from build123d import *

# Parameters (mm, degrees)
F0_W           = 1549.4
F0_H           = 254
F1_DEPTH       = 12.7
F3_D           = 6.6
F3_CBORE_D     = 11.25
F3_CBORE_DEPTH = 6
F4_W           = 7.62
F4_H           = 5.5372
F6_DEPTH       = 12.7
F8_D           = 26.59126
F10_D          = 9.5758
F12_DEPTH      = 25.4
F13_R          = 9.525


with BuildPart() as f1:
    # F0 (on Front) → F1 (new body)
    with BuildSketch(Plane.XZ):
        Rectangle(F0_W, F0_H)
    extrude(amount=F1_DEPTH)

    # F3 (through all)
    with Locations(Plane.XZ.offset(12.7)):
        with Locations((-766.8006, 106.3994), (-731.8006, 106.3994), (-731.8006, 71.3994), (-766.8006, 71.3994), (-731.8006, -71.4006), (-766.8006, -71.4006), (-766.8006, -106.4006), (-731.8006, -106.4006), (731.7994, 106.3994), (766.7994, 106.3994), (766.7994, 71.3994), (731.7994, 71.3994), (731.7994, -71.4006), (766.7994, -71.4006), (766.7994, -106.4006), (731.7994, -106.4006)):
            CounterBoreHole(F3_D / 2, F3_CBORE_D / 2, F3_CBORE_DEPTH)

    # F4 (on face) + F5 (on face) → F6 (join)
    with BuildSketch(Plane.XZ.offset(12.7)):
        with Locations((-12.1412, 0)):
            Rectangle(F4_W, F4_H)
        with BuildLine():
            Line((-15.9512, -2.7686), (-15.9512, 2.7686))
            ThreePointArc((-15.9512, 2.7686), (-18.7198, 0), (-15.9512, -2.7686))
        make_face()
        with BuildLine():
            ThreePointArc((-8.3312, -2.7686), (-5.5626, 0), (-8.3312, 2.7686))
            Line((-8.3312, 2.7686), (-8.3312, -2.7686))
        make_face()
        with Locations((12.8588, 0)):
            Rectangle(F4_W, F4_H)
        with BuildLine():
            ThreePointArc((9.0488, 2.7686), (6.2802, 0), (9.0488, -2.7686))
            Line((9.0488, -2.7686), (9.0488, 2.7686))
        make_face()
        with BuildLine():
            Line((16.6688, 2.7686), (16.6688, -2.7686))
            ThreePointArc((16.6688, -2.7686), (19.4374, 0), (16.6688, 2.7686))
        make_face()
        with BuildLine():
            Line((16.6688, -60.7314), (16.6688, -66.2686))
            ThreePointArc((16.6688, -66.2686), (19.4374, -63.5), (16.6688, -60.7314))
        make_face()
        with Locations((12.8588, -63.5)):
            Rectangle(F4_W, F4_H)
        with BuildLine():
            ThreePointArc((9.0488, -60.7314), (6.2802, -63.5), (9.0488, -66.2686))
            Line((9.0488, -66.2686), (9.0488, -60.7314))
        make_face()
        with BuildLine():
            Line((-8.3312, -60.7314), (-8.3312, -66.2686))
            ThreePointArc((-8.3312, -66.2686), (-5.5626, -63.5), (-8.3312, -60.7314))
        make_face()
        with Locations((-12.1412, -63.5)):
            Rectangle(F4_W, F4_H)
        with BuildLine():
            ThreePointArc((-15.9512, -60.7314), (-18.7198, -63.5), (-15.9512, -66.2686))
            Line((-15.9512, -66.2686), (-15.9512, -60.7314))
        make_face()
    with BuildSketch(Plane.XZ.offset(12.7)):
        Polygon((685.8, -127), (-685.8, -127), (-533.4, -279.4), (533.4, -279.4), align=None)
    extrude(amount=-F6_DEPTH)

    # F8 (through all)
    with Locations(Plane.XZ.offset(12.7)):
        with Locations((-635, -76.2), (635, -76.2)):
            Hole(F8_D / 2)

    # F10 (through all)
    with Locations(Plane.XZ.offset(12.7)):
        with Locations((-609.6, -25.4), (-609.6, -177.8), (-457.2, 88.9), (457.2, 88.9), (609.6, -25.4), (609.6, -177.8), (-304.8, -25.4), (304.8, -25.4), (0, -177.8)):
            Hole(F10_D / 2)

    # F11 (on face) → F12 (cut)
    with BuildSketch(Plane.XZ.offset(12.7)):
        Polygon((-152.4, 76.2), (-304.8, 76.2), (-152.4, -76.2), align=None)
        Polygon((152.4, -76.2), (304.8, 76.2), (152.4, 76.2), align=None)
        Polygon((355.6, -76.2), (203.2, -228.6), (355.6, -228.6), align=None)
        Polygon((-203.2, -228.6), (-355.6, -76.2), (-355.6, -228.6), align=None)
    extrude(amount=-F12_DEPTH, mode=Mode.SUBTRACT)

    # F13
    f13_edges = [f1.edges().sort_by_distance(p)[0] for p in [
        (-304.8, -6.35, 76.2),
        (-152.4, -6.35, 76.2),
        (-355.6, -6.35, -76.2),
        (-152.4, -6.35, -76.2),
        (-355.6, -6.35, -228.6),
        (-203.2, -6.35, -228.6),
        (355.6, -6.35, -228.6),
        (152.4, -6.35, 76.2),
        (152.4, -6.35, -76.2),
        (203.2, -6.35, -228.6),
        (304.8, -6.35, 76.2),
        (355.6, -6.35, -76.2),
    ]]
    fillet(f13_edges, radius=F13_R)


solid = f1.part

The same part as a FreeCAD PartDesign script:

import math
import FreeCAD as App
import Part
import Sketcher
from FreeCAD import Vector
Q = App.Units.Quantity


def edges_at(feature, points):
    """Names of the edges that pass closest to the given points."""
    edges = feature.Shape.Edges
    near = lambda p: min(range(len(edges)), key=lambda i: edges[i].distToShape(Part.Vertex(*p))[0])
    return sorted({f"Edge{near(p) + 1}" for p in points})

doc = App.newDocument("Part")
params = doc.addObject("Spreadsheet::Sheet", "Params")
for row, (alias, value) in enumerate([
    ("sketch1_width", "61 in"),
    ("sketch1_height", "10 in"),
    ("pad1_length", "0.5 in"),
    ("hole_diameter", "6.6 mm"),
    ("hole_cbore_diameter", "11.25 mm"),
    ("hole_cbore_depth", "6 mm"),
    ("sketch3_width", "54 in"),
    ("sketch3_width2", "42 in"),
    ("sketch3_width3", "0.3 in"),
    ("sketch3_radius", "0.109 in"),
    ("pad2_length", "0.5 in"),
    ("hole2_diameter", "1.0469 in"),
    ("sketch5_diameter", "0.377 in"),
    ("hole3_diameter", "0.377 in"),
    ("sketch6_width", "6 in"),
    ("pocket1_length", "1 in"),
    ("fillet_radius", "0.375 in"),
], start=1):
    params.set(f"A{row}", alias)
    params.set(f"B{row}", "=" + value)
    params.setAlias(f"B{row}", alias)

body = doc.addObject("PartDesign::Body", "Body")

# Sketch on XZ plane
sketch1 = body.newObject("Sketcher::SketchObject", "Sketch")
sketch1.AttachmentSupport = (doc.getObject("XZ_Plane"), [""])
sketch1.MapMode = "FlatFace"
sketch1.addGeometry(Part.LineSegment(Vector(-775, 127, 0), Vector(-775, -127, 0)), False)
sketch1.addGeometry(Part.LineSegment(Vector(-775, -127, 0), Vector(775, -127, 0)), False)
sketch1.addGeometry(Part.LineSegment(Vector(775, -127, 0), Vector(775, 127, 0)), False)
sketch1.addGeometry(Part.LineSegment(Vector(775, 127, 0), Vector(-775, 127, 0)), False)
sketch1.addConstraint(Sketcher.Constraint("Coincident", 0, 2, 1, 1))
sketch1.addConstraint(Sketcher.Constraint("Coincident", 1, 2, 2, 1))
sketch1.addConstraint(Sketcher.Constraint("Coincident", 2, 2, 3, 1))
sketch1.addConstraint(Sketcher.Constraint("Coincident", 3, 2, 0, 1))
sketch1.addConstraint(Sketcher.Constraint("Vertical", 0))
sketch1.addConstraint(Sketcher.Constraint("Horizontal", 1))
sketch1.addConstraint(Sketcher.Constraint("Vertical", 2))
sketch1.addConstraint(Sketcher.Constraint("Horizontal", 3))
sketch1.addConstraint(Sketcher.Constraint("Symmetric", 0, 2, 2, 2, -1, 1))
sketch1.addConstraint(Sketcher.Constraint("DistanceX", 1, 1, 1, 2, Q("61 in")))
sketch1.addConstraint(Sketcher.Constraint("DistanceY", 0, 2, 0, 1, Q("10 in")))
sketch1.setExpression("Constraints[9]", "Params.sketch1_width")
sketch1.setExpression("Constraints[10]", "Params.sketch1_height")
pad1 = body.newObject("PartDesign::Pad", "Pad")
pad1.Profile = sketch1
pad1.setExpression("Length", "Params.pad1_length")

# Sketch on XZ plane
sketch2 = body.newObject("Sketcher::SketchObject", "Sketch001")
sketch2.AttachmentSupport = (doc.getObject("XZ_Plane"), [""])
sketch2.MapMode = "FlatFace"
sketch2.AttachmentOffset = App.Placement(Vector(0, 0, 0.5 * 25.4), App.Rotation())
sketch2.addGeometry(Part.Circle(Vector(-766.8, 106.4, 0), Vector(0, 0, 1), 3.3), False)
sketch2.addGeometry(Part.Circle(Vector(-731.8, 106.4, 0), Vector(0, 0, 1), 3.3), False)
sketch2.addGeometry(Part.Circle(Vector(-731.8, 71.4, 0), Vector(0, 0, 1), 3.3), False)
sketch2.addGeometry(Part.Circle(Vector(-766.8, 71.4, 0), Vector(0, 0, 1), 3.3), False)
sketch2.addGeometry(Part.Circle(Vector(-731.8, -71.4, 0), Vector(0, 0, 1), 3.3), False)
sketch2.addGeometry(Part.Circle(Vector(-766.8, -71.4, 0), Vector(0, 0, 1), 3.3), False)
sketch2.addGeometry(Part.Circle(Vector(-766.8, -106.4, 0), Vector(0, 0, 1), 3.3), False)
sketch2.addGeometry(Part.Circle(Vector(-731.8, -106.4, 0), Vector(0, 0, 1), 3.3), False)
sketch2.addGeometry(Part.Circle(Vector(731.8, 106.4, 0), Vector(0, 0, 1), 3.3), False)
sketch2.addGeometry(Part.Circle(Vector(766.8, 106.4, 0), Vector(0, 0, 1), 3.3), False)
sketch2.addGeometry(Part.Circle(Vector(766.8, 71.4, 0), Vector(0, 0, 1), 3.3), False)
sketch2.addGeometry(Part.Circle(Vector(731.8, 71.4, 0), Vector(0, 0, 1), 3.3), False)
sketch2.addGeometry(Part.Circle(Vector(731.8, -71.4, 0), Vector(0, 0, 1), 3.3), False)
sketch2.addGeometry(Part.Circle(Vector(766.8, -71.4, 0), Vector(0, 0, 1), 3.3), False)
sketch2.addGeometry(Part.Circle(Vector(766.8, -106.4, 0), Vector(0, 0, 1), 3.3), False)
sketch2.addGeometry(Part.Circle(Vector(731.8, -106.4, 0), Vector(0, 0, 1), 3.3), False)
sketch2.addConstraint(Sketcher.Constraint("Equal", 0, 1))
sketch2.addConstraint(Sketcher.Constraint("Equal", 1, 2))
sketch2.addConstraint(Sketcher.Constraint("Equal", 2, 3))
sketch2.addConstraint(Sketcher.Constraint("Equal", 3, 4))
sketch2.addConstraint(Sketcher.Constraint("Equal", 4, 5))
sketch2.addConstraint(Sketcher.Constraint("Equal", 5, 6))
sketch2.addConstraint(Sketcher.Constraint("Equal", 6, 7))
sketch2.addConstraint(Sketcher.Constraint("Equal", 7, 8))
sketch2.addConstraint(Sketcher.Constraint("Equal", 8, 9))
sketch2.addConstraint(Sketcher.Constraint("Equal", 9, 10))
sketch2.addConstraint(Sketcher.Constraint("Equal", 10, 11))
sketch2.addConstraint(Sketcher.Constraint("Equal", 11, 12))
sketch2.addConstraint(Sketcher.Constraint("Equal", 12, 13))
sketch2.addConstraint(Sketcher.Constraint("Equal", 13, 14))
sketch2.addConstraint(Sketcher.Constraint("Equal", 14, 15))
sketch2.addConstraint(Sketcher.Constraint("Horizontal", 0, 3, 1, 3))
sketch2.addConstraint(Sketcher.Constraint("Horizontal", 2, 3, 3, 3))
sketch2.addConstraint(Sketcher.Constraint("Horizontal", 4, 3, 5, 3))
sketch2.addConstraint(Sketcher.Constraint("Horizontal", 6, 3, 7, 3))
sketch2.addConstraint(Sketcher.Constraint("Horizontal", 1, 3, 8, 3))
sketch2.addConstraint(Sketcher.Constraint("Horizontal", 8, 3, 9, 3))
sketch2.addConstraint(Sketcher.Constraint("Horizontal", 3, 3, 10, 3))
sketch2.addConstraint(Sketcher.Constraint("Horizontal", 10, 3, 11, 3))
sketch2.addConstraint(Sketcher.Constraint("Horizontal", 5, 3, 12, 3))
sketch2.addConstraint(Sketcher.Constraint("Horizontal", 12, 3, 13, 3))
sketch2.addConstraint(Sketcher.Constraint("Horizontal", 7, 3, 14, 3))
sketch2.addConstraint(Sketcher.Constraint("Horizontal", 14, 3, 15, 3))
sketch2.addConstraint(Sketcher.Constraint("Vertical", 1, 3, 2, 3))
sketch2.addConstraint(Sketcher.Constraint("Vertical", 0, 3, 3, 3))
sketch2.addConstraint(Sketcher.Constraint("Vertical", 2, 3, 4, 3))
sketch2.addConstraint(Sketcher.Constraint("Vertical", 3, 3, 5, 3))
sketch2.addConstraint(Sketcher.Constraint("Vertical", 5, 3, 6, 3))
sketch2.addConstraint(Sketcher.Constraint("Vertical", 4, 3, 7, 3))
sketch2.addConstraint(Sketcher.Constraint("Vertical", 9, 3, 10, 3))
sketch2.addConstraint(Sketcher.Constraint("Vertical", 8, 3, 11, 3))
sketch2.addConstraint(Sketcher.Constraint("Vertical", 11, 3, 12, 3))
sketch2.addConstraint(Sketcher.Constraint("Vertical", 10, 3, 13, 3))
sketch2.addConstraint(Sketcher.Constraint("Vertical", 13, 3, 14, 3))
sketch2.addConstraint(Sketcher.Constraint("Vertical", 12, 3, 15, 3))
sketch2.addConstraint(Sketcher.Constraint("DistanceY", 4, 3, 1, 3, Q("7 in")))
sketch2.addConstraint(Sketcher.Constraint("DistanceY", 6, 3, 3, 3, Q("7 in")))
sketch2.addConstraint(Sketcher.Constraint("DistanceX", 0, 3, 8, 3, Q("59 in")))
sketch2.addConstraint(Sketcher.Constraint("DistanceX", 1, 3, 9, 3, Q("59 in")))
sketch2.addConstraint(Sketcher.Constraint("Diameter", 0, 6.6))
sketch2.addConstraint(Sketcher.Constraint("DistanceX", 0, 3, -1, 1, Q("30.189 in")))
sketch2.addConstraint(Sketcher.Constraint("DistanceY", -1, 1, 2, 3, Q("2.811 in")))
sketch2.addConstraint(Sketcher.Constraint("DistanceY", -1, 1, 0, 3, 106.3994))
sketch2.addConstraint(Sketcher.Constraint("DistanceX", 1, 3, -1, 1, 731.8006))
doc.recompute()
hole = body.newObject("PartDesign::Hole", "Hole")
hole.Profile = sketch2
hole.ThreadType = "None"
hole.setExpression("Diameter", "Params.hole_diameter")
hole.DepthType = "ThroughAll"
hole.HoleCutType = "Counterbore"
hole.setExpression("HoleCutDiameter", "Params.hole_cbore_diameter")
hole.setExpression("HoleCutDepth", "Params.hole_cbore_depth")

# Sketch on XZ plane
sketch3 = body.newObject("Sketcher::SketchObject", "Sketch002")
sketch3.AttachmentSupport = (doc.getObject("XZ_Plane"), [""])
sketch3.MapMode = "FlatFace"
sketch3.AttachmentOffset = App.Placement(Vector(0, 0, 0.5 * 25.4), App.Rotation())
sketch3.addGeometry(Part.LineSegment(Vector(-16, -2.8, 0), Vector(-8.3, -2.8, 0)), False)
sketch3.addGeometry(Part.ArcOfCircle(Part.Circle(Vector(-8.3, 0, 0), Vector(0, 0, 1), 2.8), math.radians(-90), math.radians(90)), False)
sketch3.addGeometry(Part.LineSegment(Vector(-8.3, 2.8, 0), Vector(-16, 2.8, 0)), False)
sketch3.addGeometry(Part.ArcOfCircle(Part.Circle(Vector(-16, 0, 0), Vector(0, 0, 1), 2.8), math.radians(90), math.radians(270)), False)
sketch3.addGeometry(Part.LineSegment(Vector(9, -2.8, 0), Vector(16.7, -2.8, 0)), False)
sketch3.addGeometry(Part.ArcOfCircle(Part.Circle(Vector(16.7, 0, 0), Vector(0, 0, 1), 2.8), math.radians(-90), math.radians(90)), False)
sketch3.addGeometry(Part.LineSegment(Vector(16.7, 2.8, 0), Vector(9, 2.8, 0)), False)
sketch3.addGeometry(Part.ArcOfCircle(Part.Circle(Vector(9, 0, 0), Vector(0, 0, 1), 2.8), math.radians(90), math.radians(270)), False)
sketch3.addGeometry(Part.ArcOfCircle(Part.Circle(Vector(16.7, -63.5, 0), Vector(0, 0, 1), 2.8), math.radians(-90), math.radians(90)), False)
sketch3.addGeometry(Part.LineSegment(Vector(16.7, -60.7, 0), Vector(9, -60.7, 0)), False)
sketch3.addGeometry(Part.ArcOfCircle(Part.Circle(Vector(9, -63.5, 0), Vector(0, 0, 1), 2.8), math.radians(90), math.radians(270)), False)
sketch3.addGeometry(Part.LineSegment(Vector(9, -66.3, 0), Vector(16.7, -66.3, 0)), False)
sketch3.addGeometry(Part.ArcOfCircle(Part.Circle(Vector(-8.3, -63.5, 0), Vector(0, 0, 1), 2.8), math.radians(-90), math.radians(90)), False)
sketch3.addGeometry(Part.LineSegment(Vector(-8.3, -60.7, 0), Vector(-16, -60.7, 0)), False)
sketch3.addGeometry(Part.ArcOfCircle(Part.Circle(Vector(-16, -63.5, 0), Vector(0, 0, 1), 2.8), math.radians(90), math.radians(270)), False)
sketch3.addGeometry(Part.LineSegment(Vector(-16, -66.3, 0), Vector(-8.3, -66.3, 0)), False)
sketch3.addGeometry(Part.LineSegment(Vector(685.8, -127, 0), Vector(-685.8, -127, 0)), False)
sketch3.addGeometry(Part.LineSegment(Vector(-685.8, -127, 0), Vector(-533.4, -279.4, 0)), False)
sketch3.addGeometry(Part.LineSegment(Vector(-533.4, -279.4, 0), Vector(533.4, -279.4, 0)), False)
sketch3.addGeometry(Part.LineSegment(Vector(533.4, -279.4, 0), Vector(685.8, -127, 0)), False)
sketch3.addConstraint(Sketcher.Constraint("Tangent", 0, 2, 1, 1))
sketch3.addConstraint(Sketcher.Constraint("Tangent", 1, 2, 2, 1))
sketch3.addConstraint(Sketcher.Constraint("Tangent", 2, 2, 3, 1))
sketch3.addConstraint(Sketcher.Constraint("Tangent", 3, 2, 0, 1))
sketch3.addConstraint(Sketcher.Constraint("Tangent", 4, 2, 5, 1))
sketch3.addConstraint(Sketcher.Constraint("Tangent", 5, 2, 6, 1))
sketch3.addConstraint(Sketcher.Constraint("Tangent", 6, 2, 7, 1))
sketch3.addConstraint(Sketcher.Constraint("Tangent", 7, 2, 4, 1))
sketch3.addConstraint(Sketcher.Constraint("Tangent", 8, 2, 9, 1))
sketch3.addConstraint(Sketcher.Constraint("Tangent", 9, 2, 10, 1))
sketch3.addConstraint(Sketcher.Constraint("Tangent", 10, 2, 11, 1))
sketch3.addConstraint(Sketcher.Constraint("Tangent", 11, 2, 8, 1))
sketch3.addConstraint(Sketcher.Constraint("Tangent", 12, 2, 13, 1))
sketch3.addConstraint(Sketcher.Constraint("Tangent", 13, 2, 14, 1))
sketch3.addConstraint(Sketcher.Constraint("Tangent", 14, 2, 15, 1))
sketch3.addConstraint(Sketcher.Constraint("Tangent", 15, 2, 12, 1))
sketch3.addConstraint(Sketcher.Constraint("Coincident", 16, 2, 17, 1))
sketch3.addConstraint(Sketcher.Constraint("Coincident", 17, 2, 18, 1))
sketch3.addConstraint(Sketcher.Constraint("Coincident", 18, 2, 19, 1))
sketch3.addConstraint(Sketcher.Constraint("Coincident", 19, 2, 16, 1))
sketch3.addConstraint(Sketcher.Constraint("Horizontal", 0))
sketch3.addConstraint(Sketcher.Constraint("Horizontal", 2))
sketch3.addConstraint(Sketcher.Constraint("Horizontal", 4))
sketch3.addConstraint(Sketcher.Constraint("Horizontal", 6))
sketch3.addConstraint(Sketcher.Constraint("Horizontal", 9))
sketch3.addConstraint(Sketcher.Constraint("Horizontal", 11))
sketch3.addConstraint(Sketcher.Constraint("Horizontal", 13))
sketch3.addConstraint(Sketcher.Constraint("Horizontal", 15))
sketch3.addConstraint(Sketcher.Constraint("Horizontal", 16))
sketch3.addConstraint(Sketcher.Constraint("Horizontal", 18))
sketch3.addConstraint(Sketcher.Constraint("Equal", 3, 5))
sketch3.addConstraint(Sketcher.Constraint("Equal", 7, 8))
sketch3.addConstraint(Sketcher.Constraint("Equal", 10, 12))
sketch3.addConstraint(Sketcher.Constraint("PointOnObject", 1, 3, -1))
sketch3.addConstraint(Sketcher.Constraint("PointOnObject", 5, 3, -1))
sketch3.addConstraint(Sketcher.Constraint("Perpendicular", 17, 19))
sketch3.addConstraint(Sketcher.Constraint("Horizontal", 10, 3, 12, 3))
sketch3.addConstraint(Sketcher.Constraint("Vertical", 5, 3, 8, 3))
sketch3.addConstraint(Sketcher.Constraint("Vertical", 7, 3, 10, 3))
sketch3.addConstraint(Sketcher.Constraint("Vertical", 1, 3, 12, 3))
sketch3.addConstraint(Sketcher.Constraint("Vertical", 3, 3, 14, 3))
sketch3.addConstraint(Sketcher.Constraint("Equal", 2, 4))
sketch3.addConstraint(Sketcher.Constraint("Equal", 17, 19))
sketch3.addConstraint(Sketcher.Constraint("DistanceX", 16, 2, 16, 1, Q("54 in")))
sketch3.addConstraint(Sketcher.Constraint("DistanceX", 18, 1, 18, 2, Q("42 in")))
sketch3.addConstraint(Sketcher.Constraint("DistanceX", 0, 1, 0, 2, Q("0.3 in")))
sketch3.addConstraint(Sketcher.Constraint("DistanceX", 16, 2, -1, 1, Q("27 in")))
sketch3.addConstraint(Sketcher.Constraint("DistanceY", 16, 2, -1, 1, Q("5 in")))
sketch3.addConstraint(Sketcher.Constraint("Radius", 1, Q("0.109 in")))
sketch3.addConstraint(Sketcher.Constraint("DistanceY", 8, 3, -1, 1, Q("2.5 in")))
sketch3.addConstraint(Sketcher.Constraint("DistanceX", 1, 3, -1, 1, Q("0.328 in")))
sketch3.addConstraint(Sketcher.Constraint("DistanceX", -1, 1, 5, 3, 16.6688))
sketch3.setExpression("Constraints[43]", "Params.sketch3_width")
sketch3.setExpression("Constraints[44]", "Params.sketch3_width2")
sketch3.setExpression("Constraints[45]", "Params.sketch3_width3")
sketch3.setExpression("Constraints[48]", "Params.sketch3_radius")
pad2 = body.newObject("PartDesign::Pad", "Pad001")
pad2.Profile = sketch3
pad2.setExpression("Length", "Params.pad2_length")
pad2.Reversed = True

# Sketch on XZ plane
sketch4 = body.newObject("Sketcher::SketchObject", "Sketch003")
sketch4.AttachmentSupport = (doc.getObject("XZ_Plane"), [""])
sketch4.MapMode = "FlatFace"
sketch4.AttachmentOffset = App.Placement(Vector(0, 0, 0.5 * 25.4), App.Rotation())
sketch4.addGeometry(Part.Circle(Vector(-635, -76, 0), Vector(0, 0, 1), 13), False)
sketch4.addGeometry(Part.Circle(Vector(635, -76, 0), Vector(0, 0, 1), 13), False)
sketch4.addConstraint(Sketcher.Constraint("Equal", 0, 1))
sketch4.addConstraint(Sketcher.Constraint("Symmetric", 0, 3, 1, 3, -2))
sketch4.addConstraint(Sketcher.Constraint("DistanceX", 0, 3, -1, 1, Q("25 in")))
sketch4.addConstraint(Sketcher.Constraint("DistanceY", 0, 3, -1, 1, Q("3 in")))
sketch4.addConstraint(Sketcher.Constraint("Diameter", 0, Q("1.0469 in")))
doc.recompute()
hole2 = body.newObject("PartDesign::Hole", "Hole001")
hole2.Profile = sketch4
hole2.ThreadType = "None"
hole2.setExpression("Diameter", "Params.hole2_diameter")
hole2.DepthType = "ThroughAll"

# Sketch on XZ plane
sketch5 = body.newObject("Sketcher::SketchObject", "Sketch004")
sketch5.AttachmentSupport = (doc.getObject("XZ_Plane"), [""])
sketch5.MapMode = "FlatFace"
sketch5.AttachmentOffset = App.Placement(Vector(0, 0, 0.5 * 25.4), App.Rotation())
sketch5.addGeometry(Part.Circle(Vector(-609.6, -25.4, 0), Vector(0, 0, 1), 4.8), False)
sketch5.addGeometry(Part.Circle(Vector(-609.6, -177.8, 0), Vector(0, 0, 1), 4.8), False)
sketch5.addGeometry(Part.Circle(Vector(-457.2, 88.9, 0), Vector(0, 0, 1), 4.8), False)
sketch5.addGeometry(Part.Circle(Vector(457.2, 88.9, 0), Vector(0, 0, 1), 4.8), False)
sketch5.addGeometry(Part.Circle(Vector(609.6, -25.4, 0), Vector(0, 0, 1), 4.8), False)
sketch5.addGeometry(Part.Circle(Vector(609.6, -177.8, 0), Vector(0, 0, 1), 4.8), False)
sketch5.addGeometry(Part.Circle(Vector(-304.8, -25.4, 0), Vector(0, 0, 1), 4.8), False)
sketch5.addGeometry(Part.Circle(Vector(304.8, -25.4, 0), Vector(0, 0, 1), 4.8), False)
sketch5.addGeometry(Part.Circle(Vector(0, -177.8, 0), Vector(0, 0, 1), 4.8), False)
sketch5.addConstraint(Sketcher.Constraint("Equal", 0, 1))
sketch5.addConstraint(Sketcher.Constraint("Equal", 1, 2))
sketch5.addConstraint(Sketcher.Constraint("Equal", 2, 3))
sketch5.addConstraint(Sketcher.Constraint("Equal", 3, 4))
sketch5.addConstraint(Sketcher.Constraint("Equal", 4, 5))
sketch5.addConstraint(Sketcher.Constraint("Equal", 5, 6))
sketch5.addConstraint(Sketcher.Constraint("Equal", 6, 7))
sketch5.addConstraint(Sketcher.Constraint("Equal", 7, 8))
sketch5.addConstraint(Sketcher.Constraint("Symmetric", 2, 3, 3, 3, -2))
sketch5.addConstraint(Sketcher.Constraint("Symmetric", 0, 3, 4, 3, -2))
sketch5.addConstraint(Sketcher.Constraint("Symmetric", 1, 3, 5, 3, -2))
sketch5.addConstraint(Sketcher.Constraint("Symmetric", 6, 3, 7, 3, -2))
sketch5.addConstraint(Sketcher.Constraint("PointOnObject", 8, 3, -2))
sketch5.addConstraint(Sketcher.Constraint("Horizontal", 4, 3, 6, 3))
sketch5.addConstraint(Sketcher.Constraint("Horizontal", 5, 3, 8, 3))
sketch5.addConstraint(Sketcher.Constraint("Vertical", 0, 3, 1, 3))
sketch5.addConstraint(Sketcher.Constraint("Diameter", 0, Q("0.377 in")))
sketch5.addConstraint(Sketcher.Constraint("DistanceX", 0, 3, -1, 1, Q("24 in")))
sketch5.addConstraint(Sketcher.Constraint("DistanceY", 0, 3, -1, 1, Q("1 in")))
sketch5.addConstraint(Sketcher.Constraint("DistanceY", 1, 3, -1, 1, Q("7 in")))
sketch5.addConstraint(Sketcher.Constraint("DistanceX", 2, 3, -1, 1, Q("18 in")))
sketch5.addConstraint(Sketcher.Constraint("DistanceX", 6, 3, -1, 1, Q("12 in")))
sketch5.addConstraint(Sketcher.Constraint("DistanceY", -1, 1, 2, 3, Q("3.5 in")))
sketch5.setExpression("Constraints[16]", "Params.sketch5_diameter")
doc.recompute()
hole3 = body.newObject("PartDesign::Hole", "Hole002")
hole3.Profile = sketch5
hole3.ThreadType = "None"
hole3.setExpression("Diameter", "Params.hole3_diameter")
hole3.DepthType = "ThroughAll"

# Sketch on XZ plane
sketch6 = body.newObject("Sketcher::SketchObject", "Sketch005")
sketch6.AttachmentSupport = (doc.getObject("XZ_Plane"), [""])
sketch6.MapMode = "FlatFace"
sketch6.AttachmentOffset = App.Placement(Vector(0, 0, 0.5 * 25.4), App.Rotation())
sketch6.addGeometry(Part.LineSegment(Vector(-152, 76, 0), Vector(-305, 76, 0)), False)
sketch6.addGeometry(Part.LineSegment(Vector(-305, 76, 0), Vector(-152, -76, 0)), False)
sketch6.addGeometry(Part.LineSegment(Vector(-152, -76, 0), Vector(-152, 76, 0)), False)
sketch6.addGeometry(Part.LineSegment(Vector(152, -76, 0), Vector(305, 76, 0)), False)
sketch6.addGeometry(Part.LineSegment(Vector(305, 76, 0), Vector(152, 76, 0)), False)
sketch6.addGeometry(Part.LineSegment(Vector(152, 76, 0), Vector(152, -76, 0)), False)
sketch6.addGeometry(Part.LineSegment(Vector(356, -76, 0), Vector(203, -229, 0)), False)
sketch6.addGeometry(Part.LineSegment(Vector(203, -229, 0), Vector(356, -229, 0)), False)
sketch6.addGeometry(Part.LineSegment(Vector(356, -229, 0), Vector(356, -76, 0)), False)
sketch6.addGeometry(Part.LineSegment(Vector(-203, -229, 0), Vector(-356, -76, 0)), False)
sketch6.addGeometry(Part.LineSegment(Vector(-356, -76, 0), Vector(-356, -229, 0)), False)
sketch6.addGeometry(Part.LineSegment(Vector(-356, -229, 0), Vector(-203, -229, 0)), False)
sketch6.addConstraint(Sketcher.Constraint("Coincident", 0, 2, 1, 1))
sketch6.addConstraint(Sketcher.Constraint("Coincident", 1, 2, 2, 1))
sketch6.addConstraint(Sketcher.Constraint("Coincident", 2, 2, 0, 1))
sketch6.addConstraint(Sketcher.Constraint("Coincident", 3, 2, 4, 1))
sketch6.addConstraint(Sketcher.Constraint("Coincident", 4, 2, 5, 1))
sketch6.addConstraint(Sketcher.Constraint("Coincident", 5, 2, 3, 1))
sketch6.addConstraint(Sketcher.Constraint("Coincident", 6, 2, 7, 1))
sketch6.addConstraint(Sketcher.Constraint("Coincident", 7, 2, 8, 1))
sketch6.addConstraint(Sketcher.Constraint("Coincident", 8, 2, 6, 1))
sketch6.addConstraint(Sketcher.Constraint("Coincident", 9, 2, 10, 1))
sketch6.addConstraint(Sketcher.Constraint("Coincident", 10, 2, 11, 1))
sketch6.addConstraint(Sketcher.Constraint("Coincident", 11, 2, 9, 1))
sketch6.addConstraint(Sketcher.Constraint("Horizontal", 0))
sketch6.addConstraint(Sketcher.Constraint("Vertical", 2))
sketch6.addConstraint(Sketcher.Constraint("Horizontal", 4))
sketch6.addConstraint(Sketcher.Constraint("Vertical", 5))
sketch6.addConstraint(Sketcher.Constraint("Horizontal", 7))
sketch6.addConstraint(Sketcher.Constraint("Vertical", 8))
sketch6.addConstraint(Sketcher.Constraint("Vertical", 10))
sketch6.addConstraint(Sketcher.Constraint("Horizontal", 11))
sketch6.addConstraint(Sketcher.Constraint("Symmetric", 1, 2, 4, 2, -1, 1))
sketch6.addConstraint(Sketcher.Constraint("Symmetric", 0, 2, 3, 2, -2))
sketch6.addConstraint(Sketcher.Constraint("Symmetric", 8, 2, 9, 2, -2))
sketch6.addConstraint(Sketcher.Constraint("Symmetric", 6, 2, 11, 2, -2))
sketch6.addConstraint(Sketcher.Constraint("Perpendicular", 1, 3))
sketch6.addConstraint(Sketcher.Constraint("Parallel", 3, 6))
sketch6.addConstraint(Sketcher.Constraint("Perpendicular", 6, 9))
sketch6.addConstraint(Sketcher.Constraint("Horizontal", 5, 2, 8, 2))
sketch6.addConstraint(Sketcher.Constraint("Equal", 4, 7))
sketch6.addConstraint(Sketcher.Constraint("DistanceX", 0, 2, 0, 1, Q("6 in")))
sketch6.addConstraint(Sketcher.Constraint("DistanceX", 0, 2, -1, 1, Q("12 in")))
sketch6.addConstraint(Sketcher.Constraint("DistanceX", -1, 1, 6, 2, Q("8 in")))
sketch6.setExpression("Constraints[29]", "Params.sketch6_width")
pocket1 = body.newObject("PartDesign::Pocket", "Pocket")
pocket1.Profile = sketch6
pocket1.setExpression("Length", "Params.pocket1_length")
doc.recompute()

fillet = body.newObject("PartDesign::Fillet", "Fillet")
fillet.Base = (pocket1, edges_at(pocket1, [
    (-304.8, -6.35, 76.2),
    (-152.4, -6.35, 76.2),
    (-355.6, -6.35, -76.2),
    (-152.4, -6.35, -76.2),
    (-355.6, -6.35, -228.6),
    (-203.2, -6.35, -228.6),
    (355.6, -6.35, -228.6),
    (152.4, -6.35, 76.2),
    (152.4, -6.35, -76.2),
    (203.2, -6.35, -228.6),
    (304.8, -6.35, 76.2),
    (355.6, -6.35, -76.2),
]))
fillet.setExpression("Radius", "Params.fillet_radius")

doc.recompute()
